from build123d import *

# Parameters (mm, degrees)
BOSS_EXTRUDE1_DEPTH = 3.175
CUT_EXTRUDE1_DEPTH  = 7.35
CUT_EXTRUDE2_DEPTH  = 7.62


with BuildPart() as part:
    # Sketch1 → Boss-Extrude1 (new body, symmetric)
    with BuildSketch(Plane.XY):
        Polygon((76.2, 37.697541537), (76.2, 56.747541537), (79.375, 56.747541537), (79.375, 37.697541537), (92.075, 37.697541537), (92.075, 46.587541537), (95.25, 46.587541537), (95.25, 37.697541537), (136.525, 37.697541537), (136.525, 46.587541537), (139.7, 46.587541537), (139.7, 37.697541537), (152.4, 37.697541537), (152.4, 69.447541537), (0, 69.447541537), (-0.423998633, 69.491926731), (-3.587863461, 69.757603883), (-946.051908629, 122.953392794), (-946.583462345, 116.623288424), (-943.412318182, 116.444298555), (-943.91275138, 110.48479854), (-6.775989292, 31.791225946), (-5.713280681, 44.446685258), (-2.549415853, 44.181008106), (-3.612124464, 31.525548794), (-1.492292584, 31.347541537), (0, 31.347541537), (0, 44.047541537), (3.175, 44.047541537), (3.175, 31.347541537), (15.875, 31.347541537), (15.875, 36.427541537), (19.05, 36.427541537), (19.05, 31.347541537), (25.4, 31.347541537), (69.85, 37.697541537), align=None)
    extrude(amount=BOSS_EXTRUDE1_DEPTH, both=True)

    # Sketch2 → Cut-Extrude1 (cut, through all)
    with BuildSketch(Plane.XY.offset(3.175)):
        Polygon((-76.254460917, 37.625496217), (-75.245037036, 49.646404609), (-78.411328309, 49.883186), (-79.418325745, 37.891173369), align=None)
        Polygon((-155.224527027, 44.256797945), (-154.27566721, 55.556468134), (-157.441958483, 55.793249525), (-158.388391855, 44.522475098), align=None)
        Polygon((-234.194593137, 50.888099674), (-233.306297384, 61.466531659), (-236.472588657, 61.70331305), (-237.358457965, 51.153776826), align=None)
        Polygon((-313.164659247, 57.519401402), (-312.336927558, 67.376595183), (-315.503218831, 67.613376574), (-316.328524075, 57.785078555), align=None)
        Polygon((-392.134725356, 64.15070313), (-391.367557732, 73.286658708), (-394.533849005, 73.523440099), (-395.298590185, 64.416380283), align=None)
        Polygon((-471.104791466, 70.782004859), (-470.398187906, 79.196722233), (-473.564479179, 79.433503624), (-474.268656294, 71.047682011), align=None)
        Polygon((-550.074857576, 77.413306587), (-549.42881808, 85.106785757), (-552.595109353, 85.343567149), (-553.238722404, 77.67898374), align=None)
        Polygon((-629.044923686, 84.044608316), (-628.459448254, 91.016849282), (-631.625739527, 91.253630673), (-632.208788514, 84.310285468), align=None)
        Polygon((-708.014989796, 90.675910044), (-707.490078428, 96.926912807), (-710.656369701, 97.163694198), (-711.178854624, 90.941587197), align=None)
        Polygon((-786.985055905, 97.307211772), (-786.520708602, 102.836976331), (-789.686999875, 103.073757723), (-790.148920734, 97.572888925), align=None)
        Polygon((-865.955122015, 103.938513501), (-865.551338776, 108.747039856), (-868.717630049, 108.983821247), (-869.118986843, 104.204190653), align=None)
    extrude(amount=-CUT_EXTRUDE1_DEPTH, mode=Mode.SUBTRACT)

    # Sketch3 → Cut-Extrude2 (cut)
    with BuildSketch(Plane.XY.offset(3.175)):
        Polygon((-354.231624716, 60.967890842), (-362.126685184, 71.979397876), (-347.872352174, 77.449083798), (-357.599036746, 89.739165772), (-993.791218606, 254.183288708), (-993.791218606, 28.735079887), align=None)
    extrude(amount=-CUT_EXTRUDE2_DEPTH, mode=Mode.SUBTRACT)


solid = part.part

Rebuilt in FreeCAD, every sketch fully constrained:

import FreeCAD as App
import Part
import Sketcher
from FreeCAD import Vector
Q = App.Units.Quantity


def add_polygon(sketch, points):
    """Adds a closed chain of lines whose ends are joined by coincident constraints."""
    first, n = sketch.GeometryCount, len(points)
    for a, b in zip(points, points[1:] + points[:1]):
        sketch.addGeometry(Part.LineSegment(App.Vector(*a, 0), App.Vector(*b, 0)), False)
    for i in range(n):
        sketch.addConstraint(Sketcher.Constraint("Coincident", first + i, 2, first + (i + 1) % n, 1))

doc = App.newDocument("Part")
body = doc.addObject("PartDesign::Body", "Body")

# Sketch on XY plane
sketch1 = body.newObject("Sketcher::SketchObject", "Sketch")
sketch1.AttachmentSupport = (doc.getObject("XY_Plane"), [""])
sketch1.MapMode = "FlatFace"
add_polygon(sketch1, [(76.2, 37.7), (76.2, 56.75), (79.38, 56.75), (79.38, 37.7), (92.08, 37.7), (92.08, 46.59), (95.25, 46.59), (95.25, 37.7), (136.53, 37.7), (136.53, 46.59), (139.7, 46.59), (139.7, 37.7), (152.4, 37.7), (152.4, 69.45), (0, 69.45), (-0.42, 69.49), (-3.59, 69.76), (-946.05, 122.95), (-946.58, 116.62), (-943.41, 116.44), (-943.91, 110.48), (-6.78, 31.79), (-5.71, 44.45), (-2.55, 44.18), (-3.61, 31.53), (-1.49, 31.35), (0, 31.35), (0, 44.05), (3.17, 44.05), (3.17, 31.35), (15.88, 31.35), (15.88, 36.43), (19.05, 36.43), (19.05, 31.35), (25.4, 31.35), (69.85, 37.7)])  # lines 0-35
sketch1.addConstraint(Sketcher.Constraint("Vertical", 0))
sketch1.addConstraint(Sketcher.Constraint("Horizontal", 1))
sketch1.addConstraint(Sketcher.Constraint("Vertical", 2))
sketch1.addConstraint(Sketcher.Constraint("Horizontal", 3))
sketch1.addConstraint(Sketcher.Constraint("Vertical", 4))
sketch1.addConstraint(Sketcher.Constraint("Horizontal", 5))
sketch1.addConstraint(Sketcher.Constraint("Vertical", 6))
sketch1.addConstraint(Sketcher.Constraint("Horizontal", 7))
sketch1.addConstraint(Sketcher.Constraint("Vertical", 8))
sketch1.addConstraint(Sketcher.Constraint("Horizontal", 9))
sketch1.addConstraint(Sketcher.Constraint("Vertical", 10))
sketch1.addConstraint(Sketcher.Constraint("Horizontal", 11))
sketch1.addConstraint(Sketcher.Constraint("Vertical", 12))
sketch1.addConstraint(Sketcher.Constraint("Horizontal", 13))
sketch1.addConstraint(Sketcher.Constraint("Horizontal", 25))
sketch1.addConstraint(Sketcher.Constraint("Vertical", 26))
sketch1.addConstraint(Sketcher.Constraint("Horizontal", 27))
sketch1.addConstraint(Sketcher.Constraint("Vertical", 28))
sketch1.addConstraint(Sketcher.Constraint("Horizontal", 29))
sketch1.addConstraint(Sketcher.Constraint("Vertical", 30))
sketch1.addConstraint(Sketcher.Constraint("Horizontal", 31))
sketch1.addConstraint(Sketcher.Constraint("Vertical", 32))
sketch1.addConstraint(Sketcher.Constraint("Horizontal", 33))
sketch1.addConstraint(Sketcher.Constraint("Horizontal", 35))
sketch1.addConstraint(Sketcher.Constraint("PointOnObject", 13, 2, -2))
sketch1.addConstraint(Sketcher.Constraint("PointOnObject", 25, 2, -2))
sketch1.addConstraint(Sketcher.Constraint("Perpendicular", 15, 17))
sketch1.addConstraint(Sketcher.Constraint("Parallel", 16, 18))
sketch1.addConstraint(Sketcher.Constraint("Parallel", 17, 19))
sketch1.addConstraint(Sketcher.Constraint("Perpendicular", 19, 20))
sketch1.addConstraint(Sketcher.Constraint("Perpendicular", 20, 21))
sketch1.addConstraint(Sketcher.Constraint("Perpendicular", 21, 22))
sketch1.addConstraint(Sketcher.Constraint("Perpendicular", 22, 23))
sketch1.addConstraint(Sketcher.Constraint("Perpendicular", 23, 24))
sketch1.addConstraint(Sketcher.Constraint("Horizontal", 3, 2, 6, 2))
sketch1.addConstraint(Sketcher.Constraint("Horizontal", 5, 2, 8, 2))
sketch1.addConstraint(Sketcher.Constraint("Horizontal", 7, 2, 10, 2))
sketch1.addConstraint(Sketcher.Constraint("Horizontal", 25, 2, 28, 2))
sketch1.addConstraint(Sketcher.Constraint("Horizontal", 29, 2, 32, 2))
sketch1.addConstraint(Sketcher.Constraint("Horizontal", 11, 2, 34, 2))
sketch1.addConstraint(Sketcher.Constraint("Equal", 1, 5))
sketch1.addConstraint(Sketcher.Constraint("Equal", 5, 9))
sketch1.addConstraint(Sketcher.Constraint("Equal", 3, 11))
sketch1.addConstraint(Sketcher.Constraint("Equal", 9, 27))
sketch1.addConstraint(Sketcher.Constraint("Equal", 11, 29))
sketch1.addConstraint(Sketcher.Constraint("Equal", 27, 31))
sketch1.addConstraint(Sketcher.Constraint("Equal", 33, 35))
sketch1.addConstraint(Sketcher.Constraint("Equal", 29, 26))
sketch1.addConstraint(Sketcher.Constraint("Equal", 15, 22))
sketch1.addConstraint(Sketcher.Constraint("Equal", 21, 23))
sketch1.addConstraint(Sketcher.Constraint("DistanceX", 13, 2, 13, 1, Q("6 in")))
sketch1.addConstraint(Sketcher.Constraint("DistanceX", 3, 1, 3, 2, Q("0.5 in")))
sketch1.addConstraint(Sketcher.Constraint("DistanceY", 30, 1, 30, 2, Q("0.2 in")))
sketch1.addConstraint(Sketcher.Constraint("DistanceX", -1, 1, 0, 2, Q("3 in")))
sketch1.addConstraint(Sketcher.Constraint("DistanceX", -1, 1, 33, 2, Q("1 in")))
sketch1.addConstraint(Sketcher.Constraint("Distance", 21, Q("0.5 in")))
sketch1.addConstraint(Sketcher.Constraint("DistanceX", 33, 1, 33, 2, Q("0.25 in")))
sketch1.addConstraint(Sketcher.Constraint("DistanceY", 0, 1, 0, 2, Q("0.75 in")))
sketch1.addConstraint(Sketcher.Constraint("DistanceY", 4, 1, 4, 2, Q("0.35 in")))
sketch1.addConstraint(Sketcher.Constraint("DistanceY", 12, 1, 12, 2, Q("1.25 in")))
sketch1.addConstraint(Sketcher.Constraint("Angle", 17, Q("-94.8 deg")))
sketch1.addConstraint(Sketcher.Constraint("DistanceY", 24, 2, 13, 2, Q("1.5 in")))
sketch1.addConstraint(Sketcher.Constraint("Distance", 15, Q("0.125 in")))
sketch1.addConstraint(Sketcher.Constraint("Distance", 20, Q("37.025 in")))
sketch1.addConstraint(Sketcher.Constraint("DistanceX", 14, 2, -1, 1, Q("0.423999 mm")))
sketch1.addConstraint(Sketcher.Constraint("DistanceY", -1, 1, 18, 2, Q("116.444299 mm")))
sketch1.addConstraint(Sketcher.Constraint("DistanceY", -1, 1, 19, 2, Q("110.484799 mm")))
sketch1.addConstraint(Sketcher.Constraint("DistanceX", 17, 2, 15, 2, Q("942.995599 mm")))
sketch1.addConstraint(Sketcher.Constraint("DistanceY", 20, 2, 14, 2, Q("37.700701 mm")))
sketch1.addConstraint(Sketcher.Constraint("Distance", 18, Q("3.176192 mm")))
sketch1.addConstraint(Sketcher.Constraint("DistanceX", 25, 1, 25, 2, Q("1.492293 mm")))
sketch1.addConstraint(Sketcher.Constraint("DistanceX", 16, 2, -1, 1, Q("946.051909 mm")))
pad1 = body.newObject("PartDesign::Pad", "Pad")
pad1.Profile = sketch1
pad1.Length = Q("0.25 in")
pad1.Midplane = True

# Sketch on XY plane
sketch2 = body.newObject("Sketcher::SketchObject", "Sketch001")
sketch2.AttachmentSupport = (doc.getObject("XY_Plane"), [""])
sketch2.MapMode = "FlatFace"
sketch2.AttachmentOffset = App.Placement(Vector(0, 0, 0.125 * 25.4), App.Rotation())
add_polygon(sketch2, [(-76.3, 37.6), (-75.2, 49.6), (-78.4, 49.9), (-79.4, 37.9)])  # lines 0-3
add_polygon(sketch2, [(-155.2, 44.3), (-154.3, 55.6), (-157.4, 55.8), (-158.4, 44.5)])  # lines 4-7
add_polygon(sketch2, [(-234.2, 50.9), (-233.3, 61.5), (-236.5, 61.7), (-237.4, 51.2)])  # lines 8-11
add_polygon(sketch2, [(-313.2, 57.5), (-312.3, 67.4), (-315.5, 67.6), (-316.3, 57.8)])  # lines 12-15
add_polygon(sketch2, [(-392.1, 64.2), (-391.4, 73.3), (-394.5, 73.5), (-395.3, 64.4)])  # lines 16-19
add_polygon(sketch2, [(-471.1, 70.8), (-470.4, 79.2), (-473.6, 79.4), (-474.3, 71)])  # lines 20-23
add_polygon(sketch2, [(-550.1, 77.4), (-549.4, 85.1), (-552.6, 85.3), (-553.2, 77.7)])  # lines 24-27
add_polygon(sketch2, [(-629, 84), (-628.5, 91), (-631.6, 91.3), (-632.2, 84.3)])  # lines 28-31
add_polygon(sketch2, [(-708, 90.7), (-707.5, 96.9), (-710.7, 97.2), (-711.2, 90.9)])  # lines 32-35
add_polygon(sketch2, [(-787, 97.3), (-786.5, 102.8), (-789.7, 103.1), (-790.1, 97.6)])  # lines 36-39
add_polygon(sketch2, [(-866, 103.9), (-865.6, 108.7), (-868.7, 109), (-869.1, 104.2)])  # lines 40-43
sketch2.addConstraint(Sketcher.Constraint("Parallel", 0, 2))
sketch2.addConstraint(Sketcher.Constraint("Perpendicular", 2, 3))
sketch2.addConstraint(Sketcher.Constraint("Perpendicular", 3, 4))
sketch2.addConstraint(Sketcher.Constraint("Parallel", 1, 5))
sketch2.addConstraint(Sketcher.Constraint("Parallel", 4, 6))
sketch2.addConstraint(Sketcher.Constraint("Perpendicular", 6, 7))
sketch2.addConstraint(Sketcher.Constraint("Perpendicular", 7, 8))
sketch2.addConstraint(Sketcher.Constraint("Parallel", 5, 9))
sketch2.addConstraint(Sketcher.Constraint("Parallel", 8, 10))
sketch2.addConstraint(Sketcher.Constraint("Perpendicular", 10, 11))
sketch2.addConstraint(Sketcher.Constraint("Perpendicular", 11, 12))
sketch2.addConstraint(Sketcher.Constraint("Parallel", 9, 13))
sketch2.addConstraint(Sketcher.Constraint("Parallel", 12, 14))
sketch2.addConstraint(Sketcher.Constraint("Perpendicular", 14, 15))
sketch2.addConstraint(Sketcher.Constraint("Perpendicular", 15, 16))
sketch2.addConstraint(Sketcher.Constraint("Parallel", 13, 17))
sketch2.addConstraint(Sketcher.Constraint("Parallel", 16, 18))
sketch2.addConstraint(Sketcher.Constraint("Perpendicular", 18, 19))
sketch2.addConstraint(Sketcher.Constraint("Perpendicular", 19, 20))
sketch2.addConstraint(Sketcher.Constraint("Parallel", 17, 21))
sketch2.addConstraint(Sketcher.Constraint("Parallel", 20, 22))
sketch2.addConstraint(Sketcher.Constraint("Perpendicular", 22, 23))
sketch2.addConstraint(Sketcher.Constraint("Perpendicular", 23, 24))
sketch2.addConstraint(Sketcher.Constraint("Parallel", 21, 25))
sketch2.addConstraint(Sketcher.Constraint("Parallel", 24, 26))
sketch2.addConstraint(Sketcher.Constraint("Perpendicular", 26, 27))
sketch2.addConstraint(Sketcher.Constraint("Perpendicular", 27, 28))
sketch2.addConstraint(Sketcher.Constraint("Parallel", 25, 29))
sketch2.addConstraint(Sketcher.Constraint("Parallel", 28, 30))
sketch2.addConstraint(Sketcher.Constraint("Perpendicular", 30, 31))
sketch2.addConstraint(Sketcher.Constraint("Perpendicular", 31, 32))
sketch2.addConstraint(Sketcher.Constraint("Parallel", 29, 33))
sketch2.addConstraint(Sketcher.Constraint("Parallel", 32, 34))
sketch2.addConstraint(Sketcher.Constraint("Perpendicular", 34, 35))
sketch2.addConstraint(Sketcher.Constraint("Perpendicular", 35, 36))
sketch2.addConstraint(Sketcher.Constraint("Parallel", 33, 37))
sketch2.addConstraint(Sketcher.Constraint("Parallel", 36, 38))
sketch2.addConstraint(Sketcher.Constraint("Perpendicular", 38, 39))
sketch2.addConstraint(Sketcher.Constraint("Perpendicular", 39, 40))
sketch2.addConstraint(Sketcher.Constraint("Parallel", 37, 41))
sketch2.addConstraint(Sketcher.Constraint("Parallel", 40, 42))
sketch2.addConstraint(Sketcher.Constraint("Perpendicular", 42, 43))
sketch2.addConstraint(Sketcher.Constraint("Equal", 1, 5))
sketch2.addConstraint(Sketcher.Constraint("Equal", 5, 9))
sketch2.addConstraint(Sketcher.Constraint("Equal", 9, 13))
sketch2.addConstraint(Sketcher.Constraint("Equal", 13, 17))
sketch2.addConstraint(Sketcher.Constraint("Equal", 17, 21))
sketch2.addConstraint(Sketcher.Constraint("Equal", 21, 25))
sketch2.addConstraint(Sketcher.Constraint("Equal", 25, 29))
sketch2.addConstraint(Sketcher.Constraint("Equal", 29, 33))
sketch2.addConstraint(Sketcher.Constraint("Equal", 33, 37))
sketch2.addConstraint(Sketcher.Constraint("Equal", 37, 41))
sketch2.addConstraint(Sketcher.Constraint("Angle", 0, Q("85.2 deg")))
sketch2.addConstraint(Sketcher.Constraint("Distance", 3, Q("0.125 in")))
sketch2.addConstraint(Sketcher.Constraint("DistanceY", -1, 1, 36, 2, Q("4.0486999 in")))
sketch2.addConstraint(Sketcher.Constraint("DistanceY", -1, 1, 11, 2, Q("50.8881 mm")))
sketch2.addConstraint(Sketcher.Constraint("DistanceY", -1, 1, 15, 2, Q("57.519401 mm")))
sketch2.addConstraint(Sketcher.Constraint("DistanceX", 37, 2, -1, 1, Q("789.687 mm")))
sketch2.addConstraint(Sketcher.Constraint("DistanceY", 2, 2, 6, 2, Q("6.631302 mm")))
sketch2.addConstraint(Sketcher.Constraint("DistanceX", 7, 2, 2, 2, Q("75.806201 mm")))
sketch2.addConstraint(Sketcher.Constraint("DistanceX", 7, 2, 1, 2, Q("76.813199 mm")))
sketch2.addConstraint(Sketcher.Constraint("DistanceY", 6, 2, 10, 2, Q("6.631302 mm")))
sketch2.addConstraint(Sketcher.Constraint("DistanceX", 10, 2, 5, 2, Q("79.916499 mm")))
sketch2.addConstraint(Sketcher.Constraint("DistanceX", 11, 2, 6, 2, Q("75.806201 mm")))
sketch2.addConstraint(Sketcher.Constraint("DistanceY", 10, 2, 13, 2, Q("16.4596 mm")))
sketch2.addConstraint(Sketcher.Constraint("DistanceX", 15, 2, 10, 2, Q("75.806201 mm")))
sketch2.addConstraint(Sketcher.Constraint("DistanceX", 16, 2, 15, 2, Q("78.202898 mm")))
sketch2.addConstraint(Sketcher.Constraint("DistanceY", 14, 2, 18, 2, Q("6.631302 mm")))
sketch2.addConstraint(Sketcher.Constraint("DistanceX", 19, 2, 14, 2, Q("75.806201 mm")))
sketch2.addConstraint(Sketcher.Constraint("DistanceY", 19, 2, 21, 2, Q("15.2828 mm")))
sketch2.addConstraint(Sketcher.Constraint("DistanceY", 18, 2, 22, 2, Q("6.631302 mm")))
sketch2.addConstraint(Sketcher.Constraint("DistanceX", 23, 2, 18, 2, Q("75.806201 mm")))
sketch2.addConstraint(Sketcher.Constraint("DistanceY", 22, 2, 26, 2, Q("6.631302 mm")))
sketch2.addConstraint(Sketcher.Constraint("DistanceX", 27, 2, 22, 2, Q("75.806201 mm")))
sketch2.addConstraint(Sketcher.Constraint("DistanceY", 26, 2, 30, 2, Q("6.631302 mm")))
sketch2.addConstraint(Sketcher.Constraint("DistanceX", 31, 2, 26, 2, Q("75.806201 mm")))
sketch2.addConstraint(Sketcher.Constraint("DistanceY", 30, 2, 34, 2, Q("6.631302 mm")))
sketch2.addConstraint(Sketcher.Constraint("DistanceX", 35, 2, 30, 2, Q("75.806201 mm")))
sketch2.addConstraint(Sketcher.Constraint("DistanceY", 34, 2, 38, 2, Q("6.631302 mm")))
sketch2.addConstraint(Sketcher.Constraint("DistanceX", 39, 2, 34, 2, Q("75.806201 mm")))
sketch2.addConstraint(Sketcher.Constraint("DistanceY", 38, 2, 42, 2, Q("6.631302 mm")))
sketch2.addConstraint(Sketcher.Constraint("DistanceX", 43, 2, 38, 2, Q("75.806201 mm")))
sketch2.addConstraint(Sketcher.Constraint("Distance", 4, Q("11.339439 mm")))
sketch2.addConstraint(Sketcher.Constraint("Distance", 26, Q("7.691559 mm")))
sketch2.addConstraint(Sketcher.Constraint("Distance", 28, Q("6.99678 mm")))
sketch2.addConstraint(Sketcher.Constraint("Distance", 40, Q("4.82545 mm")))
sketch2.addConstraint(Sketcher.Constraint("DistanceY", -1, 1, 8, 2, Q("61.466532 mm")))
sketch2.addConstraint(Sketcher.Constraint("DistanceX", 32, 2, -1, 1, Q("707.490078 mm")))
pocket1 = body.newObject("PartDesign::Pocket", "Pocket")
pocket1.Profile = sketch2
pocket1.Type = "ThroughAll"

# Sketch on XY plane
sketch3 = body.newObject("Sketcher::SketchObject", "Sketch002")
sketch3.AttachmentSupport = (doc.getObject("XY_Plane"), [""])
sketch3.MapMode = "FlatFace"
sketch3.AttachmentOffset = App.Placement(Vector(0, 0, 0.125 * 25.4), App.Rotation())
add_polygon(sketch3, [(-354, 61), (-362, 72), (-348, 77), (-358, 90), (-994, 254), (-994, 29)])  # lines 0-5
sketch3.addConstraint(Sketcher.Constraint("Vertical", 4))
sketch3.addConstraint(Sketcher.Constraint("DistanceY", 4, 2, 4, 1, Q("225.448209 mm")))
sketch3.addConstraint(Sketcher.Constraint("Distance", 2, Q("15.673369 mm")))
sketch3.addConstraint(Sketcher.Constraint("Distance", 5, Q("640.371321 mm")))
sketch3.addConstraint(Sketcher.Constraint("DistanceX", 3, 2, -1, 1, Q("993.791219 mm")))
sketch3.addConstraint(Sketcher.Constraint("DistanceY", -1, 1, 3, 2, Q("254.183289 mm")))
sketch3.addConstraint(Sketcher.Constraint("DistanceY", -1, 1, 5, 2, Q("60.967891 mm")))
sketch3.addConstraint(Sketcher.Constraint("DistanceY", 1, 2, 2, 2, Q("12.290082 mm")))
sketch3.addConstraint(Sketcher.Constraint("DistanceX", 0, 2, 2, 2, Q("4.527648 mm")))
sketch3.addConstraint(Sketcher.Constraint("DistanceX", 3, 2, 2, 2, Q("636.192182 mm")))
sketch3.addConstraint(Sketcher.Constraint("DistanceY", 0, 2, 3, 2, Q("182.203891 mm")))
sketch3.addConstraint(Sketcher.Constraint("Distance", 1, Q("15.267727 mm")))
pocket2 = body.newObject("PartDesign::Pocket", "Pocket001")
pocket2.Profile = sketch3
pocket2.Length = Q("0.3 in")

doc.recompute()
